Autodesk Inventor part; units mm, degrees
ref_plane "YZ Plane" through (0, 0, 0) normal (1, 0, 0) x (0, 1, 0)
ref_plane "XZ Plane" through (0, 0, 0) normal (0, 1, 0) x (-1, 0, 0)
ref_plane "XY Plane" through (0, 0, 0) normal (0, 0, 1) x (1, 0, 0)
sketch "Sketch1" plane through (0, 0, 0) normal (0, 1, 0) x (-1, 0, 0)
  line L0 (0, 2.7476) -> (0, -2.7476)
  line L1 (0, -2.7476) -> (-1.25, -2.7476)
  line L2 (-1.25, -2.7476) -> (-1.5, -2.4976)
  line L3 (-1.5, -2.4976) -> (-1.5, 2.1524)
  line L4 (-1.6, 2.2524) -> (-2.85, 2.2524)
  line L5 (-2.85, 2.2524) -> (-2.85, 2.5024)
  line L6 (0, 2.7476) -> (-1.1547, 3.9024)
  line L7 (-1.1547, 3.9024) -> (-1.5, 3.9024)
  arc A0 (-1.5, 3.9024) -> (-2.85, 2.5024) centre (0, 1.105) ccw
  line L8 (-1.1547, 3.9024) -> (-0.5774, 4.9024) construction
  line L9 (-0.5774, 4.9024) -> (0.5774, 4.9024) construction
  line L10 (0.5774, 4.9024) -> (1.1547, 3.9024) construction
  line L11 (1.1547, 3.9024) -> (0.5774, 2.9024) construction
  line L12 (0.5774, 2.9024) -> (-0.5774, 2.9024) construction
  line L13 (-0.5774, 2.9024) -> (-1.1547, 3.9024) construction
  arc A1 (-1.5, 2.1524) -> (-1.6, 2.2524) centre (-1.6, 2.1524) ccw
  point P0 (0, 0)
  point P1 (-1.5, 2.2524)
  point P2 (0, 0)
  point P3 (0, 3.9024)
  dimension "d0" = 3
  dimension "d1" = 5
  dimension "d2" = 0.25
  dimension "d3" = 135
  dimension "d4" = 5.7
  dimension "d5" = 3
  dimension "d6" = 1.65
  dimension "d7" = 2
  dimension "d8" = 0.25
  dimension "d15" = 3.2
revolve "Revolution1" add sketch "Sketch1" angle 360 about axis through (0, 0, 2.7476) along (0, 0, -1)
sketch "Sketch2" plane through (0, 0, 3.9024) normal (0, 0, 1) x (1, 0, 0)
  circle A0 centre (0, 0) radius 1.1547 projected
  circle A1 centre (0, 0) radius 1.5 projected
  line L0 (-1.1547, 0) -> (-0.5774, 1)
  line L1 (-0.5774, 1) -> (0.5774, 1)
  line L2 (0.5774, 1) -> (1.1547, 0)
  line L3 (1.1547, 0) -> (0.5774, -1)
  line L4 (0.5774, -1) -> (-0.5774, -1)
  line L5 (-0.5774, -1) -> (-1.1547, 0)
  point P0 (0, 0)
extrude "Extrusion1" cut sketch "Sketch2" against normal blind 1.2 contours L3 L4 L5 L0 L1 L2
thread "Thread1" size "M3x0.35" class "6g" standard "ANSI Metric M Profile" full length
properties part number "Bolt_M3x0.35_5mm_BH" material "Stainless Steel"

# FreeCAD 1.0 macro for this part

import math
import FreeCAD as App
import Part
import Sketcher
from FreeCAD import Vector
Q = App.Units.Quantity


def add_polygon(sketch, points):
    """Adds a closed chain of lines whose ends are joined by coincident constraints."""
    first, n = sketch.GeometryCount, len(points)
    for a, b in zip(points, points[1:] + points[:1]):
        sketch.addGeometry(Part.LineSegment(App.Vector(*a, 0), App.Vector(*b, 0)), False)
    for i in range(n):
        sketch.addConstraint(Sketcher.Constraint("Coincident", first + i, 2, first + (i + 1) % n, 1))

doc = App.newDocument("Part")
params = doc.addObject("Spreadsheet::Sheet", "Params")
for row, (alias, value) in enumerate([
    ("sketch1_height", "0.25 mm"),
    ("sketch1_radius", "0.1 mm"),
    ("sketch1_width", "1.25 mm"),
    ("revolution_angle", "360 deg"),
    ("pocket1_length", "1.2 mm"),
], start=1):
    params.set(f"A{row}", alias)
    params.set(f"B{row}", "=" + value)
    params.setAlias(f"B{row}", alias)

body = doc.addObject("PartDesign::Body", "Body")

sketch1 = body.newObject("Sketcher::SketchObject", "Sketch")
sketch1.AttachmentSupport = (doc.getObject("XZ_Plane"), [""])
sketch1.MapMode = "FlatFace"
sketch1.addGeometry([
    Part.LineSegment(Vector(0, -2.75, 0), Vector(0, 2.75, 0)),
    Part.LineSegment(Vector(0, 2.75, 0), Vector(1.15, 3.9, 0)),
    Part.LineSegment(Vector(1.15, 3.9, 0), Vector(1.5, 3.9, 0)),
    Part.ArcOfCircle(Part.Circle(Vector(0, 1.1, 0), Vector(0, 0, 1), 3.17), math.radians(26), math.radians(62)),
    Part.LineSegment(Vector(2.85, 2.5, 0), Vector(2.85, 2.25, 0)),
    Part.LineSegment(Vector(2.85, 2.25, 0), Vector(1.6, 2.25, 0)),
    Part.ArcOfCircle(Part.Circle(Vector(1.6, 2.15, 0), Vector(0, 0, 1), 0.1), math.radians(90), math.radians(180)),
    Part.LineSegment(Vector(1.5, 2.15, 0), Vector(1.5, -2.5, 0)),
    Part.LineSegment(Vector(1.5, -2.5, 0), Vector(1.25, -2.75, 0)),
    Part.LineSegment(Vector(1.25, -2.75, 0), Vector(0, -2.75, 0)),
], False)
sketch1.addConstraint([
    Sketcher.Constraint("Coincident", 0, 2, 1, 1),
    Sketcher.Constraint("Coincident", 1, 2, 2, 1),
    Sketcher.Constraint("Coincident", 2, 2, 3, 2),
    Sketcher.Constraint("Coincident", 3, 1, 4, 1),
    Sketcher.Constraint("Coincident", 4, 2, 5, 1),
    Sketcher.Constraint("Tangent", 5, 2, 6, 1),
    Sketcher.Constraint("Tangent", 6, 2, 7, 1),
    Sketcher.Constraint("Coincident", 7, 2, 8, 1),
    Sketcher.Constraint("Coincident", 8, 2, 9, 1),
    Sketcher.Constraint("Coincident", 9, 2, 0, 1),
    Sketcher.Constraint("Vertical", 0),
    Sketcher.Constraint("Horizontal", 2),
    Sketcher.Constraint("Vertical", 4),
    Sketcher.Constraint("Horizontal", 5),
    Sketcher.Constraint("Vertical", 7),
    Sketcher.Constraint("Horizontal", 9),
    Sketcher.Constraint("Symmetric", 0, 2, 9, 2, -1, 1),
    Sketcher.Constraint("PointOnObject", 3, 3, -2),
    Sketcher.Constraint("Parallel", 1, 8),
    Sketcher.Constraint("Vertical", 2, 2, 6, 2),
    Sketcher.Constraint("Equal", 5, 9),
    Sketcher.Constraint("Angle", 8, Q("-135 deg")),
    Sketcher.Constraint("DistanceY", 8, 2, 5, 2, Q("5 mm")),
    Sketcher.Constraint("DistanceY", 4, 2, 4, 1, Q("0.25 mm")),
    Sketcher.Constraint("Radius", 6, Q("0.1 mm")),
    Sketcher.Constraint("DistanceY", 4, 2, 2, 2, Q("1.65 mm")),
    Sketcher.Constraint("DistanceX", 8, 2, 7, 2, Q("0.25 mm")),
    Sketcher.Constraint("DistanceX", 5, 2, 5, 1, Q("1.25 mm")),
    Sketcher.Constraint("Distance", 1, Q("1.633 mm")),
])
sketch1.setExpression("Constraints[23]", "Params.sketch1_height")
sketch1.setExpression("Constraints[24]", "Params.sketch1_radius")
sketch1.setExpression("Constraints[27]", "Params.sketch1_width")
revolution = body.newObject("PartDesign::Revolution", "Revolution")
revolution.Profile = sketch1
revolution.ReferenceAxis = (sketch1, ["V_Axis"])
revolution.setExpression("Angle", "Params.revolution_angle")

sketch2 = body.newObject("Sketcher::SketchObject", "Sketch001")
sketch2.AttachmentSupport = (doc.getObject("XY_Plane"), [""])
sketch2.MapMode = "FlatFace"
sketch2.AttachmentOffset = App.Placement(Vector(0, 0, 3.9024), App.Rotation())
add_polygon(sketch2, [(0.6, -1), (1.2, 0), (0.6, 1), (-0.6, 1), (-1.2, 0), (-0.6, -1)])
sketch2.addConstraint([
    Sketcher.Constraint("Horizontal", 2),
    Sketcher.Constraint("Horizontal", 5),
    Sketcher.Constraint("Symmetric", 0, 2, 3, 2, -1, 1),
    Sketcher.Constraint("Symmetric", 1, 2, 4, 2, -1, 1),
    Sketcher.Constraint("PointOnObject", 0, 2, -1),
    Sketcher.Constraint("Parallel", 0, 3),
    Sketcher.Constraint("Vertical", 2, 2, 4, 2),
    Sketcher.Constraint("DistanceY", -1, 1, 1, 2, Q("1 mm")),
    Sketcher.Constraint("DistanceX", 2, 2, 2, 1, Q("1.1548 mm")),
    Sketcher.Constraint("DistanceX", 2, 2, 0, 2, Q("1.732 mm")),
])
pocket1 = body.newObject("PartDesign::Pocket", "Pocket")
pocket1.Profile = sketch2
pocket1.setExpression("Length", "Params.pocket1_length")

doc.recompute()
